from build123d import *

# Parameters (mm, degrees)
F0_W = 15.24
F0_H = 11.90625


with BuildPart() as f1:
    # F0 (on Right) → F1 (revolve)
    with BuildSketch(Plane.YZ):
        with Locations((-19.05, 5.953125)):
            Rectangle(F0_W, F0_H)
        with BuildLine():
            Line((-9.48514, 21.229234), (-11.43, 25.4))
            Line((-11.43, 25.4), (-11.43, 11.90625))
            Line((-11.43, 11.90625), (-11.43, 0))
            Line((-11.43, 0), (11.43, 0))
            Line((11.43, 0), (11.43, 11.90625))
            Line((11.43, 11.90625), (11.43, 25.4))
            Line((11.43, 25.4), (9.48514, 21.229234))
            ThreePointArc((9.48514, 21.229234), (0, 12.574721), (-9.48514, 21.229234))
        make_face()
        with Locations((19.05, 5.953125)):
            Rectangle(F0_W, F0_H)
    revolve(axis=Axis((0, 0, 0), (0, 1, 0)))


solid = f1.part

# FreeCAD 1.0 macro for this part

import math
import FreeCAD as App
import Part
import Sketcher
from FreeCAD import Vector
Q = App.Units.Quantity

doc = App.newDocument("Part")
params = doc.addObject("Spreadsheet::Sheet", "Params")
for row, (alias, value) in enumerate([
    ("sketch1_width", "2.1 in"),
    ("sketch1_width2", "0.6 in"),
    ("sketch1_radius", "0.375 in"),
    ("sketch1_height", "0.46875 in"),
    ("revolution_angle", "360 deg"),
], start=1):
    params.set(f"A{row}", alias)
    params.set(f"B{row}", "=" + value)
    params.setAlias(f"B{row}", alias)

body = doc.addObject("PartDesign::Body", "Body")

# Sketch on YZ plane
sketch1 = body.newObject("Sketcher::SketchObject", "Sketch")
sketch1.AttachmentSupport = (doc.getObject("YZ_Plane"), [""])
sketch1.MapMode = "FlatFace"
sketch1.addGeometry([
    Part.LineSegment(Vector(-26.67, 11.90625, 0), Vector(-26.67, 0, 0)),  # 0
    Part.LineSegment(Vector(-26.67, 0, 0), Vector(26.67, 0, 0)),  # 1
    Part.LineSegment(Vector(26.67, 0, 0), Vector(26.67, 11.90625, 0)),  # 2
    Part.LineSegment(Vector(26.67, 11.90625, 0), Vector(11.43, 11.90625, 0)),  # 3
    Part.LineSegment(Vector(11.43, 11.90625, 0), Vector(11.43, 25.4, 0)),  # 4
    Part.LineSegment(Vector(11.43, 25.4, 0), Vector(9.48514, 21.229234, 0)),  # 5
    Part.ArcOfCircle(Part.Circle(Vector(0, 22.099721, 0), Vector(0, 0, 1), 9.525), math.radians(-174.756438), math.radians(-5.243562)),  # 6
    Part.LineSegment(Vector(-9.48514, 21.229234, 0), Vector(-11.43, 25.4, 0)),  # 7
    Part.LineSegment(Vector(-11.43, 25.4, 0), Vector(-11.43, 11.90625, 0)),  # 8
    Part.LineSegment(Vector(-11.43, 11.90625, 0), Vector(-26.67, 11.90625, 0)),  # 9
], False)
sketch1.addConstraint([
    Sketcher.Constraint("Coincident", 0, 2, 1, 1),
    Sketcher.Constraint("Coincident", 1, 2, 2, 1),
    Sketcher.Constraint("Coincident", 2, 2, 3, 1),
    Sketcher.Constraint("Coincident", 3, 2, 4, 1),
    Sketcher.Constraint("Coincident", 4, 2, 5, 1),
    Sketcher.Constraint("Coincident", 5, 2, 6, 2),
    Sketcher.Constraint("Coincident", 6, 1, 7, 1),
    Sketcher.Constraint("Coincident", 7, 2, 8, 1),
    Sketcher.Constraint("Coincident", 8, 2, 9, 1),
    Sketcher.Constraint("Coincident", 9, 2, 0, 1),
    Sketcher.Constraint("Vertical", 0),
    Sketcher.Constraint("Horizontal", 1),
    Sketcher.Constraint("Vertical", 2),
    Sketcher.Constraint("Horizontal", 3),
    Sketcher.Constraint("Vertical", 4),
    Sketcher.Constraint("Vertical", 8),
    Sketcher.Constraint("Horizontal", 9),
    Sketcher.Constraint("Symmetric", 0, 2, 1, 2, -1, 1),
    Sketcher.Constraint("Symmetric", 5, 2, 6, 1, -2),
    Sketcher.Constraint("Symmetric", 4, 2, 7, 2, -2),
    Sketcher.Constraint("Horizontal", 3, 2, 8, 2),
    Sketcher.Constraint("DistanceX", 1, 1, 1, 2, Q("2.1 in")),
    Sketcher.Constraint("DistanceX", 3, 2, 3, 1, Q("0.6 in")),
    Sketcher.Constraint("DistanceY", -1, 1, 4, 2, Q("1 in")),
    Sketcher.Constraint("Angle", 5, Q("-114.999999 deg")),
    Sketcher.Constraint("Radius", 6, Q("0.375 in")),
    Sketcher.Constraint("DistanceY", 0, 2, 0, 1, Q("0.46875 in")),
    Sketcher.Constraint("Distance", 5, 4.601931),
])
sketch1.setExpression("Constraints[21]", "Params.sketch1_width")
sketch1.setExpression("Constraints[22]", "Params.sketch1_width2")
sketch1.setExpression("Constraints[25]", "Params.sketch1_radius")
sketch1.setExpression("Constraints[26]", "Params.sketch1_height")
revolution = body.newObject("PartDesign::Revolution", "Revolution")
revolution.Profile = sketch1
revolution.ReferenceAxis = (sketch1, ["H_Axis"])
revolution.setExpression("Angle", "Params.revolution_angle")

doc.recompute()
